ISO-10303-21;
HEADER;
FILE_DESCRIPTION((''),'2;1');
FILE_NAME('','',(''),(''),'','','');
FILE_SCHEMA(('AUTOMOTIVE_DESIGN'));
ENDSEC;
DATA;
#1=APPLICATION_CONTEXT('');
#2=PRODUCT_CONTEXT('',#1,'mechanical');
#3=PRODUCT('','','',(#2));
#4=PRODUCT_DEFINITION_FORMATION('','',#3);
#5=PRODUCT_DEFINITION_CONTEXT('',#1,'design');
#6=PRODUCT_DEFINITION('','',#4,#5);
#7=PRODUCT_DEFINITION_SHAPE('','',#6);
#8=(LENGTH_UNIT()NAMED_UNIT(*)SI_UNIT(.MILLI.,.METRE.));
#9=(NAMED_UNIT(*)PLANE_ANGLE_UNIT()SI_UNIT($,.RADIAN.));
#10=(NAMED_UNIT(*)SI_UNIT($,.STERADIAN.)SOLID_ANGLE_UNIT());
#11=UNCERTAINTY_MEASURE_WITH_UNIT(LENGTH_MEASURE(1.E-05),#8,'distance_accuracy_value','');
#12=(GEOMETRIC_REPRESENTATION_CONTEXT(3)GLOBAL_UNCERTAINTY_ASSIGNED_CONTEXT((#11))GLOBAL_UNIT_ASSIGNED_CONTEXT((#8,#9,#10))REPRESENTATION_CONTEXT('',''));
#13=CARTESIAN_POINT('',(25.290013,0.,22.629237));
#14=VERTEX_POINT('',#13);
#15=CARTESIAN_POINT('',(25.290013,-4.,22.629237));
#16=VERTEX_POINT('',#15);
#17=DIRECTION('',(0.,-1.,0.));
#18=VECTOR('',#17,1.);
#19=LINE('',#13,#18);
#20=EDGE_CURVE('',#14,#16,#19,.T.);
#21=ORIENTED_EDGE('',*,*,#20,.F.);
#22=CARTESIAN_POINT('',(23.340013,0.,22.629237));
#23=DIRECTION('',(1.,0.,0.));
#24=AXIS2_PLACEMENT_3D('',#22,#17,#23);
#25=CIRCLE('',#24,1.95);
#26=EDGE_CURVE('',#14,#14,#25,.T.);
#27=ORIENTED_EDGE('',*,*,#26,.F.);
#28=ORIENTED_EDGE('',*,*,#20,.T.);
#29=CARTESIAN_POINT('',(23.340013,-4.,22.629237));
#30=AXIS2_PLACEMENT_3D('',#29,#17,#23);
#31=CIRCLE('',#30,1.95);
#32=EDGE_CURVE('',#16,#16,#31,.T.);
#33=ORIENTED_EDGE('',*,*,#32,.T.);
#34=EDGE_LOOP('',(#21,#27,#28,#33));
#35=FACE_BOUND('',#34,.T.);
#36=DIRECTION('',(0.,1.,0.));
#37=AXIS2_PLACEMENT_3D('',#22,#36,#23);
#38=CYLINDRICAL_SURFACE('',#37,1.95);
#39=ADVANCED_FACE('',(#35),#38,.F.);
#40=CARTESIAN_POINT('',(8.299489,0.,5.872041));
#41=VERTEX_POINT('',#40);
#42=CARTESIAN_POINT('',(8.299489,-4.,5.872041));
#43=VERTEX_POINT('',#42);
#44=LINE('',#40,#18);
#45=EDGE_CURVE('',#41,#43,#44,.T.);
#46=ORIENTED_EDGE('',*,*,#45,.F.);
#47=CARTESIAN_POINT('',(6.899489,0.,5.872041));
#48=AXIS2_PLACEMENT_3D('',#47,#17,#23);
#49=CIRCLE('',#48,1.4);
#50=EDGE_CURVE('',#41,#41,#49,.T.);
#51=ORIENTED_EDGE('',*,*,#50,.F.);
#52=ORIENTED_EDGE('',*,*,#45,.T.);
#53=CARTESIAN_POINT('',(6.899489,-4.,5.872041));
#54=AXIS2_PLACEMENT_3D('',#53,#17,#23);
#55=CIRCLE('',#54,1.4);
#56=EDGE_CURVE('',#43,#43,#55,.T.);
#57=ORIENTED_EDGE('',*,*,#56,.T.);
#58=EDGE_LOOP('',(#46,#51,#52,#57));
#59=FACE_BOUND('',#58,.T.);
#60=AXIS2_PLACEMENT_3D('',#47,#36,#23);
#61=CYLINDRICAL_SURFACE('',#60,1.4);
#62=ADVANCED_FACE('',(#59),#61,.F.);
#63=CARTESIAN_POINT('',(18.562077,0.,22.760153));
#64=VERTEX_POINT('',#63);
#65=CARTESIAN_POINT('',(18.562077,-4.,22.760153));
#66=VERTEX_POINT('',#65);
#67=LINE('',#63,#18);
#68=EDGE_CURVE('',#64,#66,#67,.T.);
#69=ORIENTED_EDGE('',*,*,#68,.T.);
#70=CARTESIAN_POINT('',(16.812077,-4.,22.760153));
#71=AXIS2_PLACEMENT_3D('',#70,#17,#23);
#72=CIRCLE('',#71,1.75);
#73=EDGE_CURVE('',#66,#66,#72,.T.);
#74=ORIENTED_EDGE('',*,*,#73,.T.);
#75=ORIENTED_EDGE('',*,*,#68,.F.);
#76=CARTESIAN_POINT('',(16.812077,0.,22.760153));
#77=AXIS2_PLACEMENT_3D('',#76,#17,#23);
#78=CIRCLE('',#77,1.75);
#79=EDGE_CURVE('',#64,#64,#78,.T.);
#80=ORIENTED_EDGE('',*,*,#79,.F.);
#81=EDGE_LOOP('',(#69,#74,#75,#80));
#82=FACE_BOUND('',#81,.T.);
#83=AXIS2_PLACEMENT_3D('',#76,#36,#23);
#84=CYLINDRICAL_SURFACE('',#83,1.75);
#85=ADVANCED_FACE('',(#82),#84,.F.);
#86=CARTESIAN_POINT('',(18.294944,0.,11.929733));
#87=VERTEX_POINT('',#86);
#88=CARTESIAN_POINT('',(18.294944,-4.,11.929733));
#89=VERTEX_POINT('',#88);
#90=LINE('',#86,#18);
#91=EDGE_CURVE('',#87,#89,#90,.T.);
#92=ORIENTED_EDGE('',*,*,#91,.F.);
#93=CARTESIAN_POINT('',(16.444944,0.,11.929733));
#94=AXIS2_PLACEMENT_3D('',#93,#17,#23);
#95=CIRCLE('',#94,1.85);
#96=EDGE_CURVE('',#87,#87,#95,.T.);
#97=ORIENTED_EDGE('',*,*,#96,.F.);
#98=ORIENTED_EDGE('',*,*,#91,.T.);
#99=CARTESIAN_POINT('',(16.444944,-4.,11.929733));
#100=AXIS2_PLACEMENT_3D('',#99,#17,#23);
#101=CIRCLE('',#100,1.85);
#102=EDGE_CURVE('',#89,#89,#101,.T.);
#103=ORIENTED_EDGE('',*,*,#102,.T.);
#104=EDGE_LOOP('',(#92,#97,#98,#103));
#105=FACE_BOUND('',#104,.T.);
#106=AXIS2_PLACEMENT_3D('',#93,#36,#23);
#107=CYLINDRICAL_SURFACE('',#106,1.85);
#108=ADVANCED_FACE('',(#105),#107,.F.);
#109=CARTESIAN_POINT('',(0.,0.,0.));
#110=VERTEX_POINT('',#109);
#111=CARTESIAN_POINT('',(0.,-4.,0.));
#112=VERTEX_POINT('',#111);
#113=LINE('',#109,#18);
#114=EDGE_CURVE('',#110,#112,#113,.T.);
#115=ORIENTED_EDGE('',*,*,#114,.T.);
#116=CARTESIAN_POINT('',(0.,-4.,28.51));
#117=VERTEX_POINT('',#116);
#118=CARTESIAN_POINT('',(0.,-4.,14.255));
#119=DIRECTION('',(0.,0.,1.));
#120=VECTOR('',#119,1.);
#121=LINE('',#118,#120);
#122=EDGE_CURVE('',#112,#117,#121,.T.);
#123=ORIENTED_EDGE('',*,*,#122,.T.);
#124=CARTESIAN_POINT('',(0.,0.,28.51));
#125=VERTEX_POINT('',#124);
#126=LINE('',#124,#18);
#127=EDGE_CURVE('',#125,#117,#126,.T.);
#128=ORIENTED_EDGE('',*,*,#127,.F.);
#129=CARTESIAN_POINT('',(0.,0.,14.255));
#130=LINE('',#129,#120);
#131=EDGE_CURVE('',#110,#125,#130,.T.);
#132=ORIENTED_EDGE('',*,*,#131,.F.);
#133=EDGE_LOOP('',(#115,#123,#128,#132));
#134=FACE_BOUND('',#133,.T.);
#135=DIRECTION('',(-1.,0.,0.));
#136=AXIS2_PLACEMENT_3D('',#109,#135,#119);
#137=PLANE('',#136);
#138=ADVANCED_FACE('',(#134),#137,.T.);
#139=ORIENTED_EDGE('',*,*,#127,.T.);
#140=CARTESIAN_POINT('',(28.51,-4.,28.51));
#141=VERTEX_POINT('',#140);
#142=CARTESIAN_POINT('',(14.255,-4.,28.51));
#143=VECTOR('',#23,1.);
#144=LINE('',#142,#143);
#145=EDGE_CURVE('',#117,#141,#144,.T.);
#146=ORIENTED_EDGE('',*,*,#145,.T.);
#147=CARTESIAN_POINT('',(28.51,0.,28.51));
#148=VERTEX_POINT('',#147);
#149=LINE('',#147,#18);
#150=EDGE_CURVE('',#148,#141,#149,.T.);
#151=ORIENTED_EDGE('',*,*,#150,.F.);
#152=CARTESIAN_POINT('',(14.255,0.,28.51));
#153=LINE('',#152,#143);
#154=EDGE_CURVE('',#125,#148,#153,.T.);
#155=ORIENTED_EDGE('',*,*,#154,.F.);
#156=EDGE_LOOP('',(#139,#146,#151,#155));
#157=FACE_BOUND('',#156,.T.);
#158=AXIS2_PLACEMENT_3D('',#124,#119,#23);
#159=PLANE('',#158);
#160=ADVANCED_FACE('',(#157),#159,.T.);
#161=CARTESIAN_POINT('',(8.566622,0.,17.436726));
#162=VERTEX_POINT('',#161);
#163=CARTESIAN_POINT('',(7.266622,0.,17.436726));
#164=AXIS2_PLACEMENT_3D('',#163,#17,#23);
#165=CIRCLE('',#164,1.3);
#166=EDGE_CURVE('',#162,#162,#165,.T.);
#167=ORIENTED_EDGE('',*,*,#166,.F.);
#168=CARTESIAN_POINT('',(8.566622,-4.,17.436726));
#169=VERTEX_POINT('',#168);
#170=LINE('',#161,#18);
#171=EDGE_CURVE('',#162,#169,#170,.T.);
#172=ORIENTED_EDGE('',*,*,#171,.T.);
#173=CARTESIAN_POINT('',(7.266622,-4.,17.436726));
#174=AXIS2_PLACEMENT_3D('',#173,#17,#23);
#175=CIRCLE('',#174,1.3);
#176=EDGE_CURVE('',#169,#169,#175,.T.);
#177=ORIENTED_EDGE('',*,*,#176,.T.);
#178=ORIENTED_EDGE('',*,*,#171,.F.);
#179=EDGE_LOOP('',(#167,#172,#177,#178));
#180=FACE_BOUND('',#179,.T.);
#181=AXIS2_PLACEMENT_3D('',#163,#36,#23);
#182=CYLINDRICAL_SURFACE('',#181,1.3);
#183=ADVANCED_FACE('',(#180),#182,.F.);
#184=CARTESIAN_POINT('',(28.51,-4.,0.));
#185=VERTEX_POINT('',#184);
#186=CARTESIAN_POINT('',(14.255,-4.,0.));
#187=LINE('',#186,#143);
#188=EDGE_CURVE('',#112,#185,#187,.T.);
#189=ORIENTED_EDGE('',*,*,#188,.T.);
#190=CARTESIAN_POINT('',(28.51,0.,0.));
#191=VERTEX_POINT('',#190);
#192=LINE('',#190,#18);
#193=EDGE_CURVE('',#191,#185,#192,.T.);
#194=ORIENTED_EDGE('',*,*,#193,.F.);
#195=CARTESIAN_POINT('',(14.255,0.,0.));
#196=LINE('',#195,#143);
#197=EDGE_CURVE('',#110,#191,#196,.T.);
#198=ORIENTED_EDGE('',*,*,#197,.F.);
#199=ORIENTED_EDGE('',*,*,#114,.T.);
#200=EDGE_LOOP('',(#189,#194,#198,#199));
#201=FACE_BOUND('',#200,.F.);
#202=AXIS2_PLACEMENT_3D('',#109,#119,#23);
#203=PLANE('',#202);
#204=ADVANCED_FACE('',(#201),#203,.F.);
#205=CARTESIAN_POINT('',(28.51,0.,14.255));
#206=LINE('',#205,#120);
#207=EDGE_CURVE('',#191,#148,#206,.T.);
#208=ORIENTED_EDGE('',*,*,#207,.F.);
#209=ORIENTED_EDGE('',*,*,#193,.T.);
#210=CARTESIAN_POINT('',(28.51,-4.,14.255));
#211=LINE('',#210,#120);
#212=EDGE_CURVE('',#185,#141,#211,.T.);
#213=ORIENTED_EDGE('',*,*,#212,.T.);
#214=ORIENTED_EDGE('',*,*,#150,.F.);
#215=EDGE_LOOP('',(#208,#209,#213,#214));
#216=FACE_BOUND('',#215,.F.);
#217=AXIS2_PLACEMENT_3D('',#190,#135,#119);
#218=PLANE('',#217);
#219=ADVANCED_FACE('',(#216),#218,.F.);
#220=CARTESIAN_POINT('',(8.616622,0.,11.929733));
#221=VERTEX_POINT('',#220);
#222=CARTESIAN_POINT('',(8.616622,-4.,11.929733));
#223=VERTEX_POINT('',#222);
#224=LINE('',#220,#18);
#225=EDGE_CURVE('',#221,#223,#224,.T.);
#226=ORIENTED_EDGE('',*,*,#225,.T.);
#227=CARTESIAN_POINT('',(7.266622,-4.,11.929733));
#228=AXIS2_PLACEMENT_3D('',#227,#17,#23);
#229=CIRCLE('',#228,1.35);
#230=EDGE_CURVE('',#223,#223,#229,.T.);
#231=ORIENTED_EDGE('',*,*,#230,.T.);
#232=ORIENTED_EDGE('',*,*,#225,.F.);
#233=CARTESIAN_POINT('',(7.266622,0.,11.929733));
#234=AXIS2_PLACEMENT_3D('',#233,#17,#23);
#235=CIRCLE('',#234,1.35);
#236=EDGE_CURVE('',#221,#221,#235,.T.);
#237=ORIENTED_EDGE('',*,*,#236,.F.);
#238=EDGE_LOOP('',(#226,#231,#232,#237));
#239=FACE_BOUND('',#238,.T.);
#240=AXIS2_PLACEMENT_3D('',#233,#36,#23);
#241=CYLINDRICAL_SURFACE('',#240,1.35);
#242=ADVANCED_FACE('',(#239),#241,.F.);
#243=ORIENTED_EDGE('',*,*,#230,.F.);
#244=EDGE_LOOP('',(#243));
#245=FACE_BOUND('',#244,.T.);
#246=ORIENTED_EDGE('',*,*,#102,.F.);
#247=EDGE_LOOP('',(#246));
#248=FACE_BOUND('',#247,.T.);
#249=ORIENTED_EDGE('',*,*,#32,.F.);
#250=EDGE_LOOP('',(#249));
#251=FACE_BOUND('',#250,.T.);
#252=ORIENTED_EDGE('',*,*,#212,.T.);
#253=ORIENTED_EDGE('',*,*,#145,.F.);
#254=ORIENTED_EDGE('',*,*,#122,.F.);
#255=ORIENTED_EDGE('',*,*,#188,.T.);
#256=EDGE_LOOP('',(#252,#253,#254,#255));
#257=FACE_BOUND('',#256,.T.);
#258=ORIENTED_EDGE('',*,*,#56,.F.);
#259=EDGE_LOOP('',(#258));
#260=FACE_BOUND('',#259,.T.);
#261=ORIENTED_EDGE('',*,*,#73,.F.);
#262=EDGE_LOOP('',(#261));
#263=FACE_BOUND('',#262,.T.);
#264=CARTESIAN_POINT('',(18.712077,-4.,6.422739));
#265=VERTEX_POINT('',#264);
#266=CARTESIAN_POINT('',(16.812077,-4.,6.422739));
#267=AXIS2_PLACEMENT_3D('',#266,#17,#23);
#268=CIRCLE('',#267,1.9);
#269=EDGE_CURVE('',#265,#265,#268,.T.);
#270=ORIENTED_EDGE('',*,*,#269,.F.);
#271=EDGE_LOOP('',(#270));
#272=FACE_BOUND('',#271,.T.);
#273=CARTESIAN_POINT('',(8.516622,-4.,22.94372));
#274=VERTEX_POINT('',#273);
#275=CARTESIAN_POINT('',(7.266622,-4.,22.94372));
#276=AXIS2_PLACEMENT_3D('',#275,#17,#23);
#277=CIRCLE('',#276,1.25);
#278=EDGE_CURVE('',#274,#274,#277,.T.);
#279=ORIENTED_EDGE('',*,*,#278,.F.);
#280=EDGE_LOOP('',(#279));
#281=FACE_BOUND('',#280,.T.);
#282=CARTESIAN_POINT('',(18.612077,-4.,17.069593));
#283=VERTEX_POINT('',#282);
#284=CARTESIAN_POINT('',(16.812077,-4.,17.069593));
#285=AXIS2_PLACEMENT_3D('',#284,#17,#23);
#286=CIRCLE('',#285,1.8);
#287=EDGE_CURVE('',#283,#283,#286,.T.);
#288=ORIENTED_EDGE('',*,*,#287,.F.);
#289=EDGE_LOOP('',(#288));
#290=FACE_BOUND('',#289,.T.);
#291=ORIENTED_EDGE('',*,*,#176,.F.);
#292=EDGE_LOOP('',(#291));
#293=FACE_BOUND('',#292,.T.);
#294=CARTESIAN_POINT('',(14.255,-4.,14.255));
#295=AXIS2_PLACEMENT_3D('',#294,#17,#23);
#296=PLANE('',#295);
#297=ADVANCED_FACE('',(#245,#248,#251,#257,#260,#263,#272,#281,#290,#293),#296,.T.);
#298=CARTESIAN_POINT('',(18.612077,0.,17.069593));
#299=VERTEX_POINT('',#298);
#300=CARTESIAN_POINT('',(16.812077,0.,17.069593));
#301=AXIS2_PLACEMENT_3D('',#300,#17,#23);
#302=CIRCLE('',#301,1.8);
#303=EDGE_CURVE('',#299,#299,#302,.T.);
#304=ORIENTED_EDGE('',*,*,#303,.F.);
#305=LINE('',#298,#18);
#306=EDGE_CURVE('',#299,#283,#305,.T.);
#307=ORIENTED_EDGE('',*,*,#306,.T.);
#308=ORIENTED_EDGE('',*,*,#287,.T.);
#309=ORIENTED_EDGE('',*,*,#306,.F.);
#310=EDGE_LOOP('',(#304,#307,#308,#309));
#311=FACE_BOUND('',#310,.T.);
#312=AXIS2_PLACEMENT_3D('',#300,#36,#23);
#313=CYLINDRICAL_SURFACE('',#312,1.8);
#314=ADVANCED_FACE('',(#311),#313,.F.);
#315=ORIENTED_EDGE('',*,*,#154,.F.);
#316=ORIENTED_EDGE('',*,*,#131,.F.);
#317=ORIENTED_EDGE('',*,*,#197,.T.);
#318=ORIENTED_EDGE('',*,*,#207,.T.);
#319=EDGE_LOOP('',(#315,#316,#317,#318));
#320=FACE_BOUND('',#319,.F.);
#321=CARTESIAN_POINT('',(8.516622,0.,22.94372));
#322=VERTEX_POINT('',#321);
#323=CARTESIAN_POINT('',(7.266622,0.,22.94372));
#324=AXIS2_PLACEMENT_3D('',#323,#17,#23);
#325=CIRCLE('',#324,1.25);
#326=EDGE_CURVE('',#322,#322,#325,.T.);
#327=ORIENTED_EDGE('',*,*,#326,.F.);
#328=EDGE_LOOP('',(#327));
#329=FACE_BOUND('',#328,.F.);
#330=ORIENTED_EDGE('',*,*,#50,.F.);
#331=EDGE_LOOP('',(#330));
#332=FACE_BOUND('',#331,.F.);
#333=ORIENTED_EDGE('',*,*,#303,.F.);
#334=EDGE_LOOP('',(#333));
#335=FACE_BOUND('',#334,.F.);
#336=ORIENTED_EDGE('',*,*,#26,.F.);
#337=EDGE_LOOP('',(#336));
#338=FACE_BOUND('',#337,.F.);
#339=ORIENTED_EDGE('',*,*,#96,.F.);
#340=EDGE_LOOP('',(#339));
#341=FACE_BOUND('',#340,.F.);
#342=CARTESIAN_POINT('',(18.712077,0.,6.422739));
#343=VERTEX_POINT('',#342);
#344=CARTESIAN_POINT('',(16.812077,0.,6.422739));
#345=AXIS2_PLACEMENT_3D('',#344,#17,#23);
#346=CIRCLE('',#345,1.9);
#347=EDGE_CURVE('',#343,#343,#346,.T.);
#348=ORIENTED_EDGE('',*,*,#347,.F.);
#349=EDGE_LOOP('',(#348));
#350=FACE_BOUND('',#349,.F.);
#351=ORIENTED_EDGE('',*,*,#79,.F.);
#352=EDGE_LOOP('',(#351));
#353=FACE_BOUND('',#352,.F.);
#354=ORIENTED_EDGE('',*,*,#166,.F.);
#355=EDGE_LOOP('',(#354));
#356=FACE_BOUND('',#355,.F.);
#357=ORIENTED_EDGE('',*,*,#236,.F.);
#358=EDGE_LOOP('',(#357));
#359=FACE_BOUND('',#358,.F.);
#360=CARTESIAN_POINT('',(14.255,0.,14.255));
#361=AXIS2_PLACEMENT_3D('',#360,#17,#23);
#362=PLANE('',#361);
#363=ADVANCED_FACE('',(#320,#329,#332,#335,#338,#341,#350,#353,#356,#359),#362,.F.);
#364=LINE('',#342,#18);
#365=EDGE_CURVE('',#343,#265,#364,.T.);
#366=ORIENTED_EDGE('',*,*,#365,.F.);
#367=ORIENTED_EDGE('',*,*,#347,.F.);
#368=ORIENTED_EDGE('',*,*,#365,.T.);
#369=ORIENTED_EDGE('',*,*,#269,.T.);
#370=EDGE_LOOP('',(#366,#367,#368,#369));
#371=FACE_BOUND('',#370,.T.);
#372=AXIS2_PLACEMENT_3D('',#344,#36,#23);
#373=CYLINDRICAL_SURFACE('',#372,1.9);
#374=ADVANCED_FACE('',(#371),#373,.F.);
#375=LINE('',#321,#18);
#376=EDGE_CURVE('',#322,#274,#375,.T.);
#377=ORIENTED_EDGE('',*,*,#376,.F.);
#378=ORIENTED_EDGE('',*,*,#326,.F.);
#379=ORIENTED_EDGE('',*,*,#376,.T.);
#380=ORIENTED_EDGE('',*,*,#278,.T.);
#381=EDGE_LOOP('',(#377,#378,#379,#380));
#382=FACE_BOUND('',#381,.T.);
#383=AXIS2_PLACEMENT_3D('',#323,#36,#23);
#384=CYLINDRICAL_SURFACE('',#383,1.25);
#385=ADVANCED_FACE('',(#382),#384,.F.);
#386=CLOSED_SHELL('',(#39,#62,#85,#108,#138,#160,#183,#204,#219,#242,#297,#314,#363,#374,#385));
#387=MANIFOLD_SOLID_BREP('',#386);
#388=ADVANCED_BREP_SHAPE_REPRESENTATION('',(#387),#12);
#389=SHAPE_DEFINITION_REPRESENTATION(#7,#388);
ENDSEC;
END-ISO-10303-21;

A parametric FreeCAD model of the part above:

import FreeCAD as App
import Part
import Sketcher


def add_polygon(sketch, points):
    """Adds a closed chain of lines whose ends are joined by coincident constraints."""
    first, n = sketch.GeometryCount, len(points)
    for a, b in zip(points, points[1:] + points[:1]):
        sketch.addGeometry(Part.LineSegment(App.Vector(*a, 0), App.Vector(*b, 0)), False)
    for i in range(n):
        sketch.addConstraint(Sketcher.Constraint("Coincident", first + i, 2, first + (i + 1) % n, 1))

doc = App.newDocument("Part")
body = doc.addObject("PartDesign::Body", "Body")

# Sketch on XZ plane
sketch1 = body.newObject("Sketcher::SketchObject", "Sketch")
sketch1.AttachmentSupport = (doc.getObject("XZ_Plane"), [""])
sketch1.MapMode = "FlatFace"
add_polygon(sketch1, [(0, 28.5), (0, 0), (28.5, 0), (28.5, 28.5)])  # lines 0-3
sketch1.addGeometry(Part.Circle(App.Vector(6.9, 5.9, 0), App.Vector(0, 0, 1), 1.4), False)  # 4
sketch1.addGeometry(Part.Circle(App.Vector(7.3, 11.9, 0), App.Vector(0, 0, 1), 1.4), False)  # 5
sketch1.addGeometry(Part.Circle(App.Vector(16.8, 6.4, 0), App.Vector(0, 0, 1), 1.9), False)  # 6
sketch1.addGeometry(Part.Circle(App.Vector(16.4, 11.9, 0), App.Vector(0, 0, 1), 1.9), False)  # 7
sketch1.addGeometry(Part.Circle(App.Vector(7.3, 17.4, 0), App.Vector(0, 0, 1), 1.3), False)  # 8
sketch1.addGeometry(Part.Circle(App.Vector(7.3, 22.9, 0), App.Vector(0, 0, 1), 1.2), False)  # 9
sketch1.addGeometry(Part.Circle(App.Vector(16.8, 17.1, 0), App.Vector(0, 0, 1), 1.8), False)  # 10
sketch1.addGeometry(Part.Circle(App.Vector(16.8, 22.8, 0), App.Vector(0, 0, 1), 1.8), False)  # 11
sketch1.addGeometry(Part.Circle(App.Vector(23.3, 22.6, 0), App.Vector(0, 0, 1), 1.9), False)  # 12
sketch1.addConstraint([
    Sketcher.Constraint("Vertical", 0),
    Sketcher.Constraint("Horizontal", 1),
    Sketcher.Constraint("Vertical", 2),
    Sketcher.Constraint("Horizontal", 3),
    Sketcher.Constraint("Coincident", 0, 2, -1, 1),
    Sketcher.Constraint("Horizontal", 5, 3, 7, 3),
    Sketcher.Constraint("Vertical", 5, 3, 8, 3),
    Sketcher.Constraint("Vertical", 8, 3, 9, 3),
    Sketcher.Constraint("Vertical", 6, 3, 10, 3),
    Sketcher.Constraint("Vertical", 10, 3, 11, 3),
    Sketcher.Constraint("Equal", 3, 0),
    Sketcher.Constraint("Diameter", 4, 2.8),
    Sketcher.Constraint("Diameter", 5, 2.7),
    Sketcher.Constraint("Diameter", 6, 3.8),
    Sketcher.Constraint("Diameter", 7, 3.7),
    Sketcher.Constraint("Diameter", 8, 2.6),
    Sketcher.Constraint("Diameter", 9, 2.5),
    Sketcher.Constraint("Diameter", 10, 3.6),
    Sketcher.Constraint("Diameter", 11, 3.5),
    Sketcher.Constraint("Diameter", 12, 3.9),
    Sketcher.Constraint("DistanceX", 1, 1, 1, 2, 28.51),
    Sketcher.Constraint("DistanceX", -1, 1, 4, 3, 6.899489),
    Sketcher.Constraint("DistanceY", -1, 1, 4, 3, 5.872041),
    Sketcher.Constraint("DistanceY", -1, 1, 6, 3, 6.422739),
    Sketcher.Constraint("DistanceY", -1, 1, 9, 3, 22.94372),
    Sketcher.Constraint("DistanceY", 7, 3, 10, 3, 5.13986),
    Sketcher.Constraint("DistanceY", 10, 3, 11, 3, 5.69056),
    Sketcher.Constraint("DistanceX", 7, 3, 12, 3, 6.895069),
    Sketcher.Constraint("DistanceX", 9, 3, 12, 3, 16.073391),
    Sketcher.Constraint("DistanceY", 8, 3, 12, 3, 5.192511),
    Sketcher.Constraint("DistanceX", 9, 3, 2, 2, 21.243378),
    Sketcher.Constraint("DistanceY", -1, 1, 5, 3, 11.929733),
    Sketcher.Constraint("DistanceX", -1, 1, 6, 3, 16.812077),
    Sketcher.Constraint("DistanceY", -1, 1, 8, 3, 17.436726),
])
pad1 = body.newObject("PartDesign::Pad", "Pad")
pad1.Profile = sketch1
pad1.Length = 4

doc.recompute()
